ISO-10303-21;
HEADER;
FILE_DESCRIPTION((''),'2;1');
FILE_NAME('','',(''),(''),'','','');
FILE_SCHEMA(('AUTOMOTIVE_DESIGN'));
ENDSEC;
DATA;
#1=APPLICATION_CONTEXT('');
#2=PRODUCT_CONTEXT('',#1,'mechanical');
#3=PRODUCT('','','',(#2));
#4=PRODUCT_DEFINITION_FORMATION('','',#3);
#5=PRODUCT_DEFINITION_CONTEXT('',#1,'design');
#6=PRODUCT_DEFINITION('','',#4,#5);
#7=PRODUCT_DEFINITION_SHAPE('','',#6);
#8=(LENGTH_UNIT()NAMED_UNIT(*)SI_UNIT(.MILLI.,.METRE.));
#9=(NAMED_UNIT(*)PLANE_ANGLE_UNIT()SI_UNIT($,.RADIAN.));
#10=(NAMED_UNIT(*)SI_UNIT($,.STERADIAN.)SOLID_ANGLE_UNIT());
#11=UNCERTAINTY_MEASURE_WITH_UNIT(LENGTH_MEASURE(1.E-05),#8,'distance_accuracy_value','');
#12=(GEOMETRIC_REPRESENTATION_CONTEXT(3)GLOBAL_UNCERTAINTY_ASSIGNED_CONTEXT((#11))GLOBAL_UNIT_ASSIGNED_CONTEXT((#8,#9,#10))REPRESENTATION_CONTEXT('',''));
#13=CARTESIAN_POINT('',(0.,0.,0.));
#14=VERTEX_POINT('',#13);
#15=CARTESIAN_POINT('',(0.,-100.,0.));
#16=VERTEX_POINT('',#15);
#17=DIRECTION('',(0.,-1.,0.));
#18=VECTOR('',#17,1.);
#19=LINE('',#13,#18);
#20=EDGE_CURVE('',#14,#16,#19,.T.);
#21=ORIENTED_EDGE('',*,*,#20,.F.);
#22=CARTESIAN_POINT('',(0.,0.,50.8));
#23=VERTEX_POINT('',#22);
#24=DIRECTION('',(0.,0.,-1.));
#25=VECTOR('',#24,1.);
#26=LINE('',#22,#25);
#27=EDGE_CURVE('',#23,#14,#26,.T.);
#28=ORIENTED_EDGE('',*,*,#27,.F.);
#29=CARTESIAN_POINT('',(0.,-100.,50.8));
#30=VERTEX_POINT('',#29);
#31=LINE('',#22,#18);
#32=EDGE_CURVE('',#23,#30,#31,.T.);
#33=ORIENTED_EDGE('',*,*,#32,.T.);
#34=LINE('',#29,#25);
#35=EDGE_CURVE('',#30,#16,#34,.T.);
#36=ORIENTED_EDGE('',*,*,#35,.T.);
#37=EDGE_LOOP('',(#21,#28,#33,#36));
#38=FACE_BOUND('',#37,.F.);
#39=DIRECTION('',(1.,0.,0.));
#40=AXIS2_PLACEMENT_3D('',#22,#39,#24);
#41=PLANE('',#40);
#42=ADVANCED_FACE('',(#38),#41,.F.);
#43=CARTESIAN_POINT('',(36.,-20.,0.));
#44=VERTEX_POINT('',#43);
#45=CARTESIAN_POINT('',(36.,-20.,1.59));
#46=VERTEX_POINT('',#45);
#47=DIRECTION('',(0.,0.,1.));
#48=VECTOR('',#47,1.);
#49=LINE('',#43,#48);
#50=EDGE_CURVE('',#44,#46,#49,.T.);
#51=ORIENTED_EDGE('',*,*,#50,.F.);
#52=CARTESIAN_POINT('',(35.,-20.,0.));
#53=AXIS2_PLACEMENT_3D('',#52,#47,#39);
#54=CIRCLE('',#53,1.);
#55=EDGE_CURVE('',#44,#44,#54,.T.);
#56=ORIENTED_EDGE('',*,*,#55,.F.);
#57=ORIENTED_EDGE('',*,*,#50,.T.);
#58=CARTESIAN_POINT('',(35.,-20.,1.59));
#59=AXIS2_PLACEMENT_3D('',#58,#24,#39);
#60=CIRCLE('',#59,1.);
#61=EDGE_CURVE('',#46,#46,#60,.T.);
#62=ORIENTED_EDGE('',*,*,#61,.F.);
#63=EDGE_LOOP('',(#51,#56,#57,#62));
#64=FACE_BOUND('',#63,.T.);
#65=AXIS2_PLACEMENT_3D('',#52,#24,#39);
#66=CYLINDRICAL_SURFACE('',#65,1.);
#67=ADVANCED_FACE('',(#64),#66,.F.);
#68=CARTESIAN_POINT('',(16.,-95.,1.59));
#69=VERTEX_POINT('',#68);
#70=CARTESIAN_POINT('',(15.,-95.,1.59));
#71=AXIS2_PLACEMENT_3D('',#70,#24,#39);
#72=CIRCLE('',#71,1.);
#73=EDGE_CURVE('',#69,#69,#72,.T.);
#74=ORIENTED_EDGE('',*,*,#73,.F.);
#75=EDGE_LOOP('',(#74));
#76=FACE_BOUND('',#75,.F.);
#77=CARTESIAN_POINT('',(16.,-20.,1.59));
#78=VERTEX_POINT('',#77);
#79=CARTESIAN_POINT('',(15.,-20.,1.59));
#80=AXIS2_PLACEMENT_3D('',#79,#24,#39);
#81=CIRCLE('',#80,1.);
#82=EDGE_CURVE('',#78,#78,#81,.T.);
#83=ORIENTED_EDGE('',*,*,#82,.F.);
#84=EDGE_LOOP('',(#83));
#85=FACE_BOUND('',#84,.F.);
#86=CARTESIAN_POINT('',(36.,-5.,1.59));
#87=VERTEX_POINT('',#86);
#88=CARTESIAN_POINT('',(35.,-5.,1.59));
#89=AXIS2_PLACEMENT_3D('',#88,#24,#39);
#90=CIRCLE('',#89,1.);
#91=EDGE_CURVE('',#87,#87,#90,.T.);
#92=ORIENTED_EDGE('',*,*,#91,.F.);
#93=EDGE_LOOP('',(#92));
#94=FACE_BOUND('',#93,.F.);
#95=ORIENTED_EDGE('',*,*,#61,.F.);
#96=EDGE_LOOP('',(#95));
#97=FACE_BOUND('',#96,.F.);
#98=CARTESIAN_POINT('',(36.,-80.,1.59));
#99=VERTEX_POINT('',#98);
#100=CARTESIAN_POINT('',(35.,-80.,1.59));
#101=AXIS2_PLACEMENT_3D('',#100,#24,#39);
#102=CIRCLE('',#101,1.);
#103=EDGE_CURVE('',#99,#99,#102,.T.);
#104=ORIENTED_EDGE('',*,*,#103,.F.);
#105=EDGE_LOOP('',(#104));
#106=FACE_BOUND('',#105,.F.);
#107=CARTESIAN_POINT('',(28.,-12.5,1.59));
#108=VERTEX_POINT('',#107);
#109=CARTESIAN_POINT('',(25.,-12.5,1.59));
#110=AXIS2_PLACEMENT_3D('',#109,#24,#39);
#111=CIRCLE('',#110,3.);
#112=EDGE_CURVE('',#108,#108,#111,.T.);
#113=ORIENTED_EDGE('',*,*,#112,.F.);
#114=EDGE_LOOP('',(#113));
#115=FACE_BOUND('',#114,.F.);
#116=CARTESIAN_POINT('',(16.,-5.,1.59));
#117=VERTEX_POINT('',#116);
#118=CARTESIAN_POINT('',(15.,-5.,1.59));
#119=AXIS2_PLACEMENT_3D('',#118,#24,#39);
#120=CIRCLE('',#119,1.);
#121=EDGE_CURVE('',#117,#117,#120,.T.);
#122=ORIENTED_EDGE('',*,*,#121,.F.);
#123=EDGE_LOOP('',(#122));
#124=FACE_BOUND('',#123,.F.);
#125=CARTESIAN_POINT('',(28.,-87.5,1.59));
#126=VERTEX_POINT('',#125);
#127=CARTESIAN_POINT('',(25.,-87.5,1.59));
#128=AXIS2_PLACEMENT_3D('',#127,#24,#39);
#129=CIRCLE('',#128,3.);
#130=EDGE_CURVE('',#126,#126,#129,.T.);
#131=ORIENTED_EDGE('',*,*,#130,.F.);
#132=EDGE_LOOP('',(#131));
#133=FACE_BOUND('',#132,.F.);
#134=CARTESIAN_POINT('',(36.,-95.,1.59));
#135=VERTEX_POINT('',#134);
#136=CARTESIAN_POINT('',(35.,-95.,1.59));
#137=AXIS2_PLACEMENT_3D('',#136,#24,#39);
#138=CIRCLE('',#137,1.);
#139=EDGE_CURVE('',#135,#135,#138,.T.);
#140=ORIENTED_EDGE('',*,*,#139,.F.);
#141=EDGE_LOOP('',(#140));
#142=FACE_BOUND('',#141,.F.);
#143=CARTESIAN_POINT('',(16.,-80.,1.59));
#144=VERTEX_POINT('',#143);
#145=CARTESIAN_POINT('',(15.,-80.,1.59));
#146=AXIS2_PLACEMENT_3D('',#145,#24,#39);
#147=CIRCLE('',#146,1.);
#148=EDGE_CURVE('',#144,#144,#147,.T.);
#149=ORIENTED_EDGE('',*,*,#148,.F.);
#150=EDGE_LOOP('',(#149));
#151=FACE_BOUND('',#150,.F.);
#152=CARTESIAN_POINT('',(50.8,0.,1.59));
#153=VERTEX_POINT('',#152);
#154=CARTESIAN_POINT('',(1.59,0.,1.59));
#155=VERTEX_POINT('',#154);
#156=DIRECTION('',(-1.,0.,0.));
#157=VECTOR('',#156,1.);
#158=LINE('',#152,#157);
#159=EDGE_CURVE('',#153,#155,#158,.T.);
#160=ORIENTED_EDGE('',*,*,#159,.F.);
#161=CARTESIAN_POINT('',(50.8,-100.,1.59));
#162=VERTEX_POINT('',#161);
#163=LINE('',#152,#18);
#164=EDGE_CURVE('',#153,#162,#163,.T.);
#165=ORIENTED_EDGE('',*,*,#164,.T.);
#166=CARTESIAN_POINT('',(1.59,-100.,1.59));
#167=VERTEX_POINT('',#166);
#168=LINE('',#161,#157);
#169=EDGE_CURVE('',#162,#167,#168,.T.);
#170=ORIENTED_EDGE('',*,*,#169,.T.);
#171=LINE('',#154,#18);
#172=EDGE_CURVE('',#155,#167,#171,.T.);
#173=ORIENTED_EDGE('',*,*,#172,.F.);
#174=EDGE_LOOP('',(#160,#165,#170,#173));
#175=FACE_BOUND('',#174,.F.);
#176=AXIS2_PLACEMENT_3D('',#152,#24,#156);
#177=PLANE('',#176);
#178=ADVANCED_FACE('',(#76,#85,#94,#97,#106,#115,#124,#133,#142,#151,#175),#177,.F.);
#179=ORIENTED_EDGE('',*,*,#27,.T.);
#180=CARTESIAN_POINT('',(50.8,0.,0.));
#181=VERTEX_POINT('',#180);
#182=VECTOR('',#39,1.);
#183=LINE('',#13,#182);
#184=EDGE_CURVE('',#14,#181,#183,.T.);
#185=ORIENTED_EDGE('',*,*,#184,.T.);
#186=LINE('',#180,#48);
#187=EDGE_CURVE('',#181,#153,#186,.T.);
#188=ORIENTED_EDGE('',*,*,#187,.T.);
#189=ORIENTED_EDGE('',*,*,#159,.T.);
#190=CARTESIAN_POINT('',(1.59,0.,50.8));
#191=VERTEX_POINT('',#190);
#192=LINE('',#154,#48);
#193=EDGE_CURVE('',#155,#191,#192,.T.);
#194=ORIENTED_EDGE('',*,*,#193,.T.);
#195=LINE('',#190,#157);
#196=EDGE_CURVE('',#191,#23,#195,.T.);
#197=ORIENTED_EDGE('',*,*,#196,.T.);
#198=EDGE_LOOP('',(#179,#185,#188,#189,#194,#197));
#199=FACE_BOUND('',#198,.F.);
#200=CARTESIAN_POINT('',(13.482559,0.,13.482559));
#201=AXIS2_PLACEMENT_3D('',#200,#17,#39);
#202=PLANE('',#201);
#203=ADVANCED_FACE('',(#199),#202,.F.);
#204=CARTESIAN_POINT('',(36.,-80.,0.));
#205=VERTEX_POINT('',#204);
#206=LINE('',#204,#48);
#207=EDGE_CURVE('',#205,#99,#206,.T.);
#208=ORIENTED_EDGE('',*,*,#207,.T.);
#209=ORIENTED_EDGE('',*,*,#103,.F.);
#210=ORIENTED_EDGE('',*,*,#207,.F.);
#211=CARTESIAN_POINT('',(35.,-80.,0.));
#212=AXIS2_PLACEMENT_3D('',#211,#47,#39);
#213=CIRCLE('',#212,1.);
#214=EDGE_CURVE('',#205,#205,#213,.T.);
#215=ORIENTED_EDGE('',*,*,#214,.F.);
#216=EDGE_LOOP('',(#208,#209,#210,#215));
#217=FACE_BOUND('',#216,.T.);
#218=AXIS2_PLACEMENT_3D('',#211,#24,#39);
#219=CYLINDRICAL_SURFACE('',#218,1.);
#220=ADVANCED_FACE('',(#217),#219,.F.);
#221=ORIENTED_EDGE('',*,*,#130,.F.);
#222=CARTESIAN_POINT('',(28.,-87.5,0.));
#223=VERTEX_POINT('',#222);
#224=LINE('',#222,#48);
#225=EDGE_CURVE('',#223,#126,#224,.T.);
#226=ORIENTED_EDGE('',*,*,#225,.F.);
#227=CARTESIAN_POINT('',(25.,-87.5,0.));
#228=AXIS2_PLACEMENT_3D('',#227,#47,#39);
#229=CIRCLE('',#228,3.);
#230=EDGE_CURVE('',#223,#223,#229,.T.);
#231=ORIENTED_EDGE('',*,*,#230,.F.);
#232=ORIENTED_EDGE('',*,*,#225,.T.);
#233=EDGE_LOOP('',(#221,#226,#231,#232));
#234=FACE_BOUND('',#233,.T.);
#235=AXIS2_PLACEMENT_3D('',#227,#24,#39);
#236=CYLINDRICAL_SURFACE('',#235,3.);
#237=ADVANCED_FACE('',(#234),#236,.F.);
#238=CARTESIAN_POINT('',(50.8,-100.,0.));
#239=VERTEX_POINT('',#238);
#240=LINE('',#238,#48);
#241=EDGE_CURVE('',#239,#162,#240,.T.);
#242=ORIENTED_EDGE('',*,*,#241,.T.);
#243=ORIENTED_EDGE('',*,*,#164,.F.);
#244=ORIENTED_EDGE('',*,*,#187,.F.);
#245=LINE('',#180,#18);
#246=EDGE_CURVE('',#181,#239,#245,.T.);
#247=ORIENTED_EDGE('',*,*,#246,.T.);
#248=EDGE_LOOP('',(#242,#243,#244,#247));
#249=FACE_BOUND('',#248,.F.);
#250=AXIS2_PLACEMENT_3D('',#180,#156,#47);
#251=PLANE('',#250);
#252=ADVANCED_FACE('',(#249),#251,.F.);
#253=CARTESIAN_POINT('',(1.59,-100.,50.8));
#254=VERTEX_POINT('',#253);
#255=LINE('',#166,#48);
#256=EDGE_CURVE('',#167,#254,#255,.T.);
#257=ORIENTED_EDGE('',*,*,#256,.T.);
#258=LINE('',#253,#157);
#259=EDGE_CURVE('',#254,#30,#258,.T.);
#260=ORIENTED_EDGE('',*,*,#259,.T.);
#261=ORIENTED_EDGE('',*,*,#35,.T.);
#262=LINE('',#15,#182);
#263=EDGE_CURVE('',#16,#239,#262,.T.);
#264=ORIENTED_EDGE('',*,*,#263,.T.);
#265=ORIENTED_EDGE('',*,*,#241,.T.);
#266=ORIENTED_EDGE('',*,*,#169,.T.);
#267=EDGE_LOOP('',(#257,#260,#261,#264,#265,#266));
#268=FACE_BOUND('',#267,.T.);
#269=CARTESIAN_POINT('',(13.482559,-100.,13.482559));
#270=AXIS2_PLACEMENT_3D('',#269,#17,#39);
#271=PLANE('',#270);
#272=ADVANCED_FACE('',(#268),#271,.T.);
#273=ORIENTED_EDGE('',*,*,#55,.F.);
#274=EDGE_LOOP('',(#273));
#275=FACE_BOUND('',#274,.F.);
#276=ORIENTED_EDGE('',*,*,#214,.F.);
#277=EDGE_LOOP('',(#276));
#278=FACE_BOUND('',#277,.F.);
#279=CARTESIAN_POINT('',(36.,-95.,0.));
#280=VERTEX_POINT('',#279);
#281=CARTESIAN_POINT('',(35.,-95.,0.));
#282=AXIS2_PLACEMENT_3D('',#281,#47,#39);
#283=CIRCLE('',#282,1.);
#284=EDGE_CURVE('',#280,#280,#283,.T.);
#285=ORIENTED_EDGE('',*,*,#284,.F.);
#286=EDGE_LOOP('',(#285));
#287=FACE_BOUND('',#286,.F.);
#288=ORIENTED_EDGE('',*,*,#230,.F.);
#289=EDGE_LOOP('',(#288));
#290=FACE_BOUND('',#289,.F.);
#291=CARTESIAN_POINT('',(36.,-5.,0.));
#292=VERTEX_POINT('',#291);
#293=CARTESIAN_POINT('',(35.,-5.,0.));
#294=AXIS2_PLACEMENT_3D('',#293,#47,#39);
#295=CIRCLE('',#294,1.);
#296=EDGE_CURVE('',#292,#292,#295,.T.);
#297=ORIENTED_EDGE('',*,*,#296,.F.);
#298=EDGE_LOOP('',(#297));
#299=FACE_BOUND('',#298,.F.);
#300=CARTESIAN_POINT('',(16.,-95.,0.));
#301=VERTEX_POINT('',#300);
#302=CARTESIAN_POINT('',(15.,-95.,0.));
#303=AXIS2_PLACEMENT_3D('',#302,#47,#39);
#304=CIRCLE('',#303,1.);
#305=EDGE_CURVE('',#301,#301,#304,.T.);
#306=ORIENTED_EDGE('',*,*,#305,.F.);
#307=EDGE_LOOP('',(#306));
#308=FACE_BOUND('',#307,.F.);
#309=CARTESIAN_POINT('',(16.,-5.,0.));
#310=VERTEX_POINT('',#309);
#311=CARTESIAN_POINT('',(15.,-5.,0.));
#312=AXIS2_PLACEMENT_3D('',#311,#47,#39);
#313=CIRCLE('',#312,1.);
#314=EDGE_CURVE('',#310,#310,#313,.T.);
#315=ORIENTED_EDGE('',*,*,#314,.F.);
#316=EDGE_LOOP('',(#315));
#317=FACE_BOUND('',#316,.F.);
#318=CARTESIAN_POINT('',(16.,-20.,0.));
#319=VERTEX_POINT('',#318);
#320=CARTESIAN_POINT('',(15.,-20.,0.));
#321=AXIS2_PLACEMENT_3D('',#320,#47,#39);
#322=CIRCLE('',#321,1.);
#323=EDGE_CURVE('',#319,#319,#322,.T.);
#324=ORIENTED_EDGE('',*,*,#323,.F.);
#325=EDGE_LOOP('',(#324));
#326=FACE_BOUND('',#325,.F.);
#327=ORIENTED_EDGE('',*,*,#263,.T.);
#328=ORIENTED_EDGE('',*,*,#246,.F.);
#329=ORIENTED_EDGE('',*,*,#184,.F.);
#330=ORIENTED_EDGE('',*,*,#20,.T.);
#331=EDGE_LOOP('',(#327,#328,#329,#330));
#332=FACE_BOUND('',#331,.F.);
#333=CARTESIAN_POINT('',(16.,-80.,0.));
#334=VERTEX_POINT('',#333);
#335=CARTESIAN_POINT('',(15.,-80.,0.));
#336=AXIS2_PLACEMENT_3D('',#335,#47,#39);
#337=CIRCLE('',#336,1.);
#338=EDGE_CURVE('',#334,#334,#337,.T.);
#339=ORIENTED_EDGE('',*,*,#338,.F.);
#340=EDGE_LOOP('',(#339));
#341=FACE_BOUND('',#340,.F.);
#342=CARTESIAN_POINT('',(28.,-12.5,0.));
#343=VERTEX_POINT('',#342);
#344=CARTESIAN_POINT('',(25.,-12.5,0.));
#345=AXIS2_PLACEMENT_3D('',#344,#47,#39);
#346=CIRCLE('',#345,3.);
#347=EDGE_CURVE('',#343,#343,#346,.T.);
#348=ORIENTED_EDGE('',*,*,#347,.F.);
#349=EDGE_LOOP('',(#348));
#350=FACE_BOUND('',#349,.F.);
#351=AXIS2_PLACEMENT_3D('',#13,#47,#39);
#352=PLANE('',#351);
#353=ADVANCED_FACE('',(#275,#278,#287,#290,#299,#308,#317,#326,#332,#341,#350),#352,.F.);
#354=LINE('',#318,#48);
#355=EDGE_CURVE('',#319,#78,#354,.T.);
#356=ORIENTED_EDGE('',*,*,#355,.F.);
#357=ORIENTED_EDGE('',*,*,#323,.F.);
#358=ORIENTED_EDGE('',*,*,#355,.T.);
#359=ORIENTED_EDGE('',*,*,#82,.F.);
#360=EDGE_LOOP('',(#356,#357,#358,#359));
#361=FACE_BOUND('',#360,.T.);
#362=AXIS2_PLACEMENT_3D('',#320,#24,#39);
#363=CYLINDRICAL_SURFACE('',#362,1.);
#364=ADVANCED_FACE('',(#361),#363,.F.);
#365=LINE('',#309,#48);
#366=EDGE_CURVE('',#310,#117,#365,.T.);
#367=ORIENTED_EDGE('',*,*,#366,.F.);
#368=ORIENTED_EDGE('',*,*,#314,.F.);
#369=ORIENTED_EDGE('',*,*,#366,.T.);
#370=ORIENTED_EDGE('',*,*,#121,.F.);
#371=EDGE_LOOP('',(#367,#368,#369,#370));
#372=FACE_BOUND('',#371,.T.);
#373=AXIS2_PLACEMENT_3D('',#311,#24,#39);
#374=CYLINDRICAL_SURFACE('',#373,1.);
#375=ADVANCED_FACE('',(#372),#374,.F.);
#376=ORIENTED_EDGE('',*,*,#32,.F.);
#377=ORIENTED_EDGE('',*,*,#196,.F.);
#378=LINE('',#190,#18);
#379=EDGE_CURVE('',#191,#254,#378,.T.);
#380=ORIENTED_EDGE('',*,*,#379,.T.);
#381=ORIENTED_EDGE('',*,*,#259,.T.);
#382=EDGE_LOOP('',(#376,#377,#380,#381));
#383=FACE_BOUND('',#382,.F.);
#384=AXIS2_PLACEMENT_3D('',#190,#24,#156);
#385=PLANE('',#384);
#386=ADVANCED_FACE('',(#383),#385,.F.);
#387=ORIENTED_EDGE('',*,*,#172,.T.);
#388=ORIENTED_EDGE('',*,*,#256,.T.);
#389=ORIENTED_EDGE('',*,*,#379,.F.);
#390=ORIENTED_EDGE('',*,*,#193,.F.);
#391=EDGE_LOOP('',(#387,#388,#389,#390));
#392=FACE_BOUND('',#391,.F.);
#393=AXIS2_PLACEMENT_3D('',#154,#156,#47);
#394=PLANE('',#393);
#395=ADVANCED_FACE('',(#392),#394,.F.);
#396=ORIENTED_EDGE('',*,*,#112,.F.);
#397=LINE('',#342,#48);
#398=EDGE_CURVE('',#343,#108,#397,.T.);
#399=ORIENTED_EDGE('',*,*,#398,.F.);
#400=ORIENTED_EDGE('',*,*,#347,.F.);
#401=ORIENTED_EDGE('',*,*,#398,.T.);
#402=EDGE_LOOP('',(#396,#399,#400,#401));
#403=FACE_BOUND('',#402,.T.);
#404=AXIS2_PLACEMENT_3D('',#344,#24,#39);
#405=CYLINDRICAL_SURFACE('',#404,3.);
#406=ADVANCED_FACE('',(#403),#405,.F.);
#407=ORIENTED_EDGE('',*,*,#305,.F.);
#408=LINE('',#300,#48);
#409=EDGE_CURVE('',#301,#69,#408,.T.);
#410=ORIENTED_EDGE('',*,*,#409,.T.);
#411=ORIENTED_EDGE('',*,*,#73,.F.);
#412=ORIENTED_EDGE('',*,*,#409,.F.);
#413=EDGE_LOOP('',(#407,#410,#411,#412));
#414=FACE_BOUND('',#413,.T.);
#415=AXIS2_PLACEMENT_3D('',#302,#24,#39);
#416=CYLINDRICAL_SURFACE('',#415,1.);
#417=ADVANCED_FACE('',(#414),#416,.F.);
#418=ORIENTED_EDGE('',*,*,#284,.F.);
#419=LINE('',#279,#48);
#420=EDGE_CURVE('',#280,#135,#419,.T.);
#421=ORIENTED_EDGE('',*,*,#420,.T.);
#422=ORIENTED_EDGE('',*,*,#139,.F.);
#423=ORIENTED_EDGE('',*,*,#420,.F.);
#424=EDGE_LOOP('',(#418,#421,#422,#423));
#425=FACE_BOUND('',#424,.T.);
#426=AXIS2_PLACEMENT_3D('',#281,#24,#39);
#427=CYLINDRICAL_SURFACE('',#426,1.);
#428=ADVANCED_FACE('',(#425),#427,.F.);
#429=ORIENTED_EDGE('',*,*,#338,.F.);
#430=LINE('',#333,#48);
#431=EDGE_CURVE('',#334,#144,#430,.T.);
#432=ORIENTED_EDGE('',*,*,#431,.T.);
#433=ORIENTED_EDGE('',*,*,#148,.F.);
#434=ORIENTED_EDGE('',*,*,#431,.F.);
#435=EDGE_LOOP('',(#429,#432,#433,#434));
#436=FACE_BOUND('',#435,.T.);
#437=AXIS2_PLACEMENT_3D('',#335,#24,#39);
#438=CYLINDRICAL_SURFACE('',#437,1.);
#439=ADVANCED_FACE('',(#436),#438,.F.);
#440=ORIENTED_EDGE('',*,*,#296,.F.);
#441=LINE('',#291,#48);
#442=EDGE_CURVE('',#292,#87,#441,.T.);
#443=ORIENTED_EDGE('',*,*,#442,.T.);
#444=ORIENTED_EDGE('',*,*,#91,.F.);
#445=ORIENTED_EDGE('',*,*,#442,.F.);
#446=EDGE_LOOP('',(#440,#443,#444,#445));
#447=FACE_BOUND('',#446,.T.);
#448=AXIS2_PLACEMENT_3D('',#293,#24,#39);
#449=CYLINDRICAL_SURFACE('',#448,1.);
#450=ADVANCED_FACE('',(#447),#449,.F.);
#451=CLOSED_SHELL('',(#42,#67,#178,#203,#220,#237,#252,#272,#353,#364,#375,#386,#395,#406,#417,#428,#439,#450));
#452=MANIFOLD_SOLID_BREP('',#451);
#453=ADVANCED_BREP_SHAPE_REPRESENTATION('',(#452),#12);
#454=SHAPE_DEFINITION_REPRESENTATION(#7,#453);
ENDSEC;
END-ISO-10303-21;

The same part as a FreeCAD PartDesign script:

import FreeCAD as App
import Part
import Sketcher
from FreeCAD import Vector
Q = App.Units.Quantity


def add_polygon(sketch, points):
    """Adds a closed chain of lines whose ends are joined by coincident constraints."""
    first, n = sketch.GeometryCount, len(points)
    for a, b in zip(points, points[1:] + points[:1]):
        sketch.addGeometry(Part.LineSegment(App.Vector(*a, 0), App.Vector(*b, 0)), False)
    for i in range(n):
        sketch.addConstraint(Sketcher.Constraint("Coincident", first + i, 2, first + (i + 1) % n, 1))

doc = App.newDocument("Part")
body = doc.addObject("PartDesign::Body", "Body")

# Sketch on XZ plane
sketch1 = doc.addObject("Sketcher::SketchObject", "Sketch")
body.addObject(sketch1)
sketch1.AttachmentSupport = (doc.XZ_Plane, [""])
sketch1.MapMode = "FlatFace"
add_polygon(sketch1, [(0, 50.8), (0, 0), (50.8, 0), (50.8, 1.6), (1.6, 1.6), (1.6, 50.8)])  # lines 0-5
sketch1.addConstraint([
    Sketcher.Constraint("Vertical", 0),
    Sketcher.Constraint("Horizontal", 1),
    Sketcher.Constraint("Vertical", 2),
    Sketcher.Constraint("Horizontal", 3),
    Sketcher.Constraint("Vertical", 4),
    Sketcher.Constraint("Horizontal", 5),
    Sketcher.Constraint("Coincident", 0, 2, -1, 1),
    Sketcher.Constraint("Equal", 1, 0),
    Sketcher.Constraint("Equal", 5, 2),
    Sketcher.Constraint("DistanceX", 1, 1, 1, 2, Q("50.8 mm")),
    Sketcher.Constraint("DistanceX", 3, 2, 3, 1, Q("49.21 mm")),
])
pad1 = doc.addObject("PartDesign::Pad", "Pad")
body.addObject(pad1)
pad1.Profile = sketch1
pad1.Length = 100

# Sketch on XY plane
sketch2 = doc.addObject("Sketcher::SketchObject", "Sketch001")
body.addObject(sketch2)
sketch2.AttachmentSupport = (doc.XY_Plane, [""])
sketch2.MapMode = "FlatFace"
sketch2.addGeometry([
    Part.Circle(Vector(15, -5, 0), Vector(0, 0, 1), 1),  # 0
    Part.Circle(Vector(35, -5, 0), Vector(0, 0, 1), 1),  # 1
    Part.Circle(Vector(15, -20, 0), Vector(0, 0, 1), 1),  # 2
    Part.Circle(Vector(35, -20, 0), Vector(0, 0, 1), 1),  # 3
    Part.Circle(Vector(35, -80, 0), Vector(0, 0, 1), 1),  # 4
    Part.Circle(Vector(15, -80, 0), Vector(0, 0, 1), 1),  # 5
    Part.Circle(Vector(35, -95, 0), Vector(0, 0, 1), 1),  # 6
    Part.Circle(Vector(15, -95, 0), Vector(0, 0, 1), 1),  # 7
    Part.Circle(Vector(25, -87.5, 0), Vector(0, 0, 1), 3),  # 8
    Part.Circle(Vector(25, -12.5, 0), Vector(0, 0, 1), 3),  # 9
], False)
sketch2.addConstraint([
    Sketcher.Constraint("Equal", 0, 1),
    Sketcher.Constraint("Equal", 1, 2),
    Sketcher.Constraint("Equal", 2, 3),
    Sketcher.Constraint("Equal", 3, 4),
    Sketcher.Constraint("Equal", 4, 5),
    Sketcher.Constraint("Equal", 5, 6),
    Sketcher.Constraint("Equal", 6, 7),
    Sketcher.Constraint("Equal", 8, 9),
    Sketcher.Constraint("Horizontal", 0, 3, 1, 3),
    Sketcher.Constraint("Horizontal", 2, 3, 3, 3),
    Sketcher.Constraint("Horizontal", 4, 3, 5, 3),
    Sketcher.Constraint("Horizontal", 6, 3, 7, 3),
    Sketcher.Constraint("Vertical", 0, 3, 2, 3),
    Sketcher.Constraint("Vertical", 1, 3, 3, 3),
    Sketcher.Constraint("Vertical", 3, 3, 4, 3),
    Sketcher.Constraint("Vertical", 2, 3, 5, 3),
    Sketcher.Constraint("Vertical", 4, 3, 6, 3),
    Sketcher.Constraint("Vertical", 5, 3, 7, 3),
    Sketcher.Constraint("Vertical", 8, 3, 9, 3),
    Sketcher.Constraint("Diameter", 0, Q("2 mm")),
    Sketcher.Constraint("Diameter", 8, Q("6 mm")),
    Sketcher.Constraint("DistanceX", -1, 1, 0, 3, Q("15 mm")),
    Sketcher.Constraint("DistanceY", 0, 3, -1, 1, Q("5 mm")),
    Sketcher.Constraint("DistanceX", -1, 1, 1, 3, Q("35 mm")),
    Sketcher.Constraint("DistanceY", 2, 3, -1, 1, Q("20 mm")),
    Sketcher.Constraint("DistanceY", 4, 3, -1, 1, Q("80 mm")),
    Sketcher.Constraint("DistanceY", 6, 3, -1, 1, Q("95 mm")),
    Sketcher.Constraint("DistanceX", -1, 1, 8, 3, Q("25 mm")),
    Sketcher.Constraint("DistanceY", 8, 3, -1, 1, Q("87.5 mm")),
    Sketcher.Constraint("DistanceY", 9, 3, -1, 1, Q("12.5 mm")),
])
pocket1 = doc.addObject("PartDesign::Pocket", "Pocket")
body.addObject(pocket1)
pocket1.Profile = sketch2
pocket1.Type = "ThroughAll"
pocket1.Reversed = True

doc.recompute()
